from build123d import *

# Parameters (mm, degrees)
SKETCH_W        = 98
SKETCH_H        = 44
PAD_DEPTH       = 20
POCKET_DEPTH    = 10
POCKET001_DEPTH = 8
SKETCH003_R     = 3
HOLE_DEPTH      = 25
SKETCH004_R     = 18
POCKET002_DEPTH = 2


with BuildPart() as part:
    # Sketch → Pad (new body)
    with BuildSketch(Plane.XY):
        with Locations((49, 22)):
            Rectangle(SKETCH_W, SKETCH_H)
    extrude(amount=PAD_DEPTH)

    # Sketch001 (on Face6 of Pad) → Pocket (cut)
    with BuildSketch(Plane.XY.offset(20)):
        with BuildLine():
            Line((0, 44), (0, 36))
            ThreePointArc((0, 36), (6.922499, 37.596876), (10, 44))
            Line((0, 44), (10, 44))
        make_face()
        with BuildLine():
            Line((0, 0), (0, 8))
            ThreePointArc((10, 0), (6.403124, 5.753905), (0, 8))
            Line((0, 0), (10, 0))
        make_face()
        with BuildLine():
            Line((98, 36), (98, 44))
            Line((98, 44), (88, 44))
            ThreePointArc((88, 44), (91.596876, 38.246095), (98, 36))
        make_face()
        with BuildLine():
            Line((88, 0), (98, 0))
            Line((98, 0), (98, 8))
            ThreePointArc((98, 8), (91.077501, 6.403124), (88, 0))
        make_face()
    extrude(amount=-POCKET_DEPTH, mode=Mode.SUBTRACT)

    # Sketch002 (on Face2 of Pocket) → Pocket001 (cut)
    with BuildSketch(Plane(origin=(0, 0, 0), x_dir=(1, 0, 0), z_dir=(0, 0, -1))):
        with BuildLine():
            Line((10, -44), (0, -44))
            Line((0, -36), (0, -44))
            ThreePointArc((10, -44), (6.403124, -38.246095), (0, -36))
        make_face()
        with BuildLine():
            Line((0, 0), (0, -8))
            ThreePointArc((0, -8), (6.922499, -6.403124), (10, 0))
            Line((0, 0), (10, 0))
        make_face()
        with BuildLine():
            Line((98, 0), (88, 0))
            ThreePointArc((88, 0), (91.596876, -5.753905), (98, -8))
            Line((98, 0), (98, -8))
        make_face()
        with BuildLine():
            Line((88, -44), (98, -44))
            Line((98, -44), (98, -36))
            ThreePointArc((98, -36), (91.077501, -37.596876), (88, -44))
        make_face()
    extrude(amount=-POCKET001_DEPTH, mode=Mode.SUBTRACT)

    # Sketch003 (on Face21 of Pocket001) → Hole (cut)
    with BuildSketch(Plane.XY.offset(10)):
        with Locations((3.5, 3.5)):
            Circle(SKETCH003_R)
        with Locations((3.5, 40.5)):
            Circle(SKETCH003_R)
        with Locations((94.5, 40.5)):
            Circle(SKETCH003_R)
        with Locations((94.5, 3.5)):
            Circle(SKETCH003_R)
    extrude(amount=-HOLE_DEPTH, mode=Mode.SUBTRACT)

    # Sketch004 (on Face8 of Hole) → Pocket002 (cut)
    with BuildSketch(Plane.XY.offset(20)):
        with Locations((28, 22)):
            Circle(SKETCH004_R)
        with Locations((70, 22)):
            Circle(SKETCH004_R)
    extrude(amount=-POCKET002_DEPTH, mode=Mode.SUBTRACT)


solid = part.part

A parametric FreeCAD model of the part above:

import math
import FreeCAD as App
import Part
import Sketcher
Q = App.Units.Quantity

doc = App.newDocument("Part")
params = doc.addObject("Spreadsheet::Sheet", "Params")
for row, (alias, value) in enumerate([
    ("sketch1_width", "98 mm"),
    ("sketch1_height", "44 mm"),
    ("pad1_length", "20 mm"),
    ("sketch2_radius", "8.200001 mm"),
    ("sketch2_width", "10 mm"),
    ("pocket1_length", "10 mm"),
    ("sketch3_radius", "8.200001 mm"),
    ("sketch3_width", "10 mm"),
    ("pocket2_length", "8 mm"),
    ("sketch4_diameter", "6 mm"),
    ("pocket3_length", "25 mm"),
    ("sketch5_diameter", "36 mm"),
    ("pocket4_length", "2 mm"),
], start=1):
    params.set(f"A{row}", alias)
    params.set(f"B{row}", "=" + value)
    params.setAlias(f"B{row}", alias)

body = doc.addObject("PartDesign::Body", "Body")

sketch1 = body.newObject("Sketcher::SketchObject", "Sketch")
sketch1.AttachmentSupport = (doc.getObject("XY_Plane"), [""])
sketch1.MapMode = "FlatFace"
sketch1.addGeometry([
    Part.LineSegment(App.Vector(0, 44, 0), App.Vector(0, 0, 0)),
    Part.LineSegment(App.Vector(0, 0, 0), App.Vector(98, 0, 0)),
    Part.LineSegment(App.Vector(98, 0, 0), App.Vector(98, 44, 0)),
    Part.LineSegment(App.Vector(98, 44, 0), App.Vector(0, 44, 0)),
], False)
sketch1.addConstraint([
    Sketcher.Constraint("Coincident", 0, 2, 1, 1),
    Sketcher.Constraint("Coincident", 1, 2, 2, 1),
    Sketcher.Constraint("Coincident", 2, 2, 3, 1),
    Sketcher.Constraint("Coincident", 3, 2, 0, 1),
    Sketcher.Constraint("Vertical", 0),
    Sketcher.Constraint("Horizontal", 1),
    Sketcher.Constraint("Vertical", 2),
    Sketcher.Constraint("Horizontal", 3),
    Sketcher.Constraint("Coincident", 0, 2, -1, 1),
    Sketcher.Constraint("DistanceX", 1, 1, 1, 2, Q("98 mm")),
    Sketcher.Constraint("DistanceY", 0, 2, 0, 1, Q("44 mm")),
])
sketch1.setExpression("Constraints[9]", "Params.sketch1_width")
sketch1.setExpression("Constraints[10]", "Params.sketch1_height")
pad1 = body.newObject("PartDesign::Pad", "Pad")
pad1.Profile = sketch1
pad1.setExpression("Length", "Params.pad1_length")

sketch2 = body.newObject("Sketcher::SketchObject", "Sketch001")
sketch2.AttachmentSupport = (doc.getObject("XY_Plane"), [""])
sketch2.MapMode = "FlatFace"
sketch2.AttachmentOffset = App.Placement(App.Vector(0, 0, 20), App.Rotation())
sketch2.addGeometry([
    Part.LineSegment(App.Vector(0, 44, 0), App.Vector(0, 36, 0)),
    Part.ArcOfCircle(Part.Circle(App.Vector(2, 44, 0), App.Vector(0, 0, 1), 8), math.radians(-103), math.radians(0)),
    Part.LineSegment(App.Vector(10, 44, 0), App.Vector(0, 44, 0)),
    Part.LineSegment(App.Vector(0, 8, 0), App.Vector(0, 0, 0)),
    Part.LineSegment(App.Vector(0, 0, 0), App.Vector(10, 0, 0)),
    Part.ArcOfCircle(Part.Circle(App.Vector(0, -2, 0), App.Vector(0, 0, 1), 10), math.radians(13), math.radians(90)),
    Part.LineSegment(App.Vector(98, 36, 0), App.Vector(98, 44, 0)),
    Part.LineSegment(App.Vector(98, 44, 0), App.Vector(88, 44, 0)),
    Part.ArcOfCircle(Part.Circle(App.Vector(98, 46, 0), App.Vector(0, 0, 1), 10), math.radians(-167), math.radians(-90)),
    Part.LineSegment(App.Vector(88, 0, 0), App.Vector(98, 0, 0)),
    Part.LineSegment(App.Vector(98, 0, 0), App.Vector(98, 8, 0)),
    Part.ArcOfCircle(Part.Circle(App.Vector(96, 0, 0), App.Vector(0, 0, 1), 8), math.radians(77), math.radians(180)),
], False)
sketch2.addConstraint([
    Sketcher.Constraint("Coincident", 0, 2, 1, 1),
    Sketcher.Constraint("Coincident", 1, 2, 2, 1),
    Sketcher.Constraint("Coincident", 2, 2, 0, 1),
    Sketcher.Constraint("Coincident", 3, 2, 4, 1),
    Sketcher.Constraint("Coincident", 4, 2, 5, 1),
    Sketcher.Constraint("Coincident", 5, 2, 3, 1),
    Sketcher.Constraint("Coincident", 6, 2, 7, 1),
    Sketcher.Constraint("Coincident", 7, 2, 8, 1),
    Sketcher.Constraint("Coincident", 8, 2, 6, 1),
    Sketcher.Constraint("Coincident", 9, 2, 10, 1),
    Sketcher.Constraint("Coincident", 10, 2, 11, 1),
    Sketcher.Constraint("Coincident", 11, 2, 9, 1),
    Sketcher.Constraint("Vertical", 0),
    Sketcher.Constraint("Horizontal", 2),
    Sketcher.Constraint("Vertical", 3),
    Sketcher.Constraint("Horizontal", 4),
    Sketcher.Constraint("Vertical", 6),
    Sketcher.Constraint("Horizontal", 7),
    Sketcher.Constraint("Horizontal", 9),
    Sketcher.Constraint("Vertical", 10),
    Sketcher.Constraint("Coincident", 3, 2, -1, 1),
    Sketcher.Constraint("Equal", 5, 8),
    Sketcher.Constraint("Equal", 1, 11),
    Sketcher.Constraint("PointOnObject", 5, 3, -2),
    Sketcher.Constraint("PointOnObject", 11, 3, -1),
    Sketcher.Constraint("PointOnObject", 0, 2, -2),
    Sketcher.Constraint("PointOnObject", 9, 2, -1),
    Sketcher.Constraint("Horizontal", 2, 2, 6, 2),
    Sketcher.Constraint("Horizontal", 0, 2, 8, 2),
    Sketcher.Constraint("Horizontal", 5, 2, 10, 2),
    Sketcher.Constraint("Vertical", 1, 2, 4, 2),
    Sketcher.Constraint("Vertical", 8, 3, 6, 2),
    Sketcher.Constraint("Vertical", 8, 2, 9, 2),
    Sketcher.Constraint("Vertical", 7, 2, 11, 2),
    Sketcher.Constraint("Equal", 4, 7),
    Sketcher.Constraint("Radius", 1, Q("8.200001 mm")),
    Sketcher.Constraint("DistanceX", 2, 2, 2, 1, Q("10 mm")),
    Sketcher.Constraint("DistanceY", -1, 1, 1, 3, Q("44.000001 mm")),
    Sketcher.Constraint("DistanceX", -1, 1, 8, 3, Q("98.000001 mm")),
])
sketch2.setExpression("Constraints[35]", "Params.sketch2_radius")
sketch2.setExpression("Constraints[36]", "Params.sketch2_width")
pocket1 = body.newObject("PartDesign::Pocket", "Pocket")
pocket1.Profile = sketch2
pocket1.setExpression("Length", "Params.pocket1_length")

sketch3 = body.newObject("Sketcher::SketchObject", "Sketch002")
sketch3.AttachmentSupport = (doc.getObject("XY_Plane"), [""])
sketch3.MapMode = "FlatFace"
sketch3.addGeometry([
    Part.LineSegment(App.Vector(0, 44, 0), App.Vector(10, 44, 0)),
    Part.ArcOfCircle(Part.Circle(App.Vector(0, 46, 0), App.Vector(0, 0, 1), 10), math.radians(-90), math.radians(-13)),
    Part.LineSegment(App.Vector(0, 36, 0), App.Vector(0, 44, 0)),
    Part.LineSegment(App.Vector(0, 0, 0), App.Vector(0, 8, 0)),
    Part.ArcOfCircle(Part.Circle(App.Vector(2, 0, 0), App.Vector(0, 0, 1), 8), math.radians(0), math.radians(103)),
    Part.LineSegment(App.Vector(10, 0, 0), App.Vector(0, 0, 0)),
    Part.LineSegment(App.Vector(98, 0, 0), App.Vector(88, 0, 0)),
    Part.ArcOfCircle(Part.Circle(App.Vector(98, -2, 0), App.Vector(0, 0, 1), 10), math.radians(90), math.radians(167)),
    Part.LineSegment(App.Vector(98, 8, 0), App.Vector(98, 0, 0)),
    Part.LineSegment(App.Vector(88, 44, 0), App.Vector(98, 44, 0)),
    Part.LineSegment(App.Vector(98, 44, 0), App.Vector(98, 36, 0)),
    Part.ArcOfCircle(Part.Circle(App.Vector(96, 44, 0), App.Vector(0, 0, 1), 8), math.radians(-180), math.radians(-77)),
], False)
sketch3.addConstraint([
    Sketcher.Constraint("Coincident", 0, 2, 1, 2),
    Sketcher.Constraint("Coincident", 1, 1, 2, 1),
    Sketcher.Constraint("Coincident", 2, 2, 0, 1),
    Sketcher.Constraint("Coincident", 3, 2, 4, 2),
    Sketcher.Constraint("Coincident", 4, 1, 5, 1),
    Sketcher.Constraint("Coincident", 5, 2, 3, 1),
    Sketcher.Constraint("Coincident", 6, 2, 7, 2),
    Sketcher.Constraint("Coincident", 7, 1, 8, 1),
    Sketcher.Constraint("Coincident", 8, 2, 6, 1),
    Sketcher.Constraint("Coincident", 9, 2, 10, 1),
    Sketcher.Constraint("Coincident", 10, 2, 11, 2),
    Sketcher.Constraint("Coincident", 11, 1, 9, 1),
    Sketcher.Constraint("Horizontal", 0),
    Sketcher.Constraint("Vertical", 2),
    Sketcher.Constraint("Vertical", 3),
    Sketcher.Constraint("Horizontal", 5),
    Sketcher.Constraint("Horizontal", 6),
    Sketcher.Constraint("Vertical", 8),
    Sketcher.Constraint("Horizontal", 9),
    Sketcher.Constraint("Vertical", 10),
    Sketcher.Constraint("Coincident", 5, 2, -1, 1),
    Sketcher.Constraint("Equal", 1, 7),
    Sketcher.Constraint("Equal", 4, 11),
    Sketcher.Constraint("PointOnObject", 1, 3, -2),
    Sketcher.Constraint("PointOnObject", 4, 3, -1),
    Sketcher.Constraint("PointOnObject", 1, 1, -2),
    Sketcher.Constraint("PointOnObject", 6, 2, -1),
    Sketcher.Constraint("Horizontal", 11, 3, 0, 2),
    Sketcher.Constraint("Horizontal", 3, 2, 7, 1),
    Sketcher.Constraint("Horizontal", 2, 2, 9, 2),
    Sketcher.Constraint("Horizontal", 1, 1, 10, 2),
    Sketcher.Constraint("Vertical", 0, 2, 4, 1),
    Sketcher.Constraint("Vertical", 8, 2, 9, 2),
    Sketcher.Constraint("Vertical", 6, 2, 11, 1),
    Sketcher.Constraint("Equal", 5, 6),
    Sketcher.Constraint("Radius", 4, Q("8.200001 mm")),
    Sketcher.Constraint("DistanceX", 0, 1, 0, 2, Q("10 mm")),
    Sketcher.Constraint("DistanceX", -1, 1, 7, 3, Q("98.000001 mm")),
    Sketcher.Constraint("DistanceY", -1, 1, 11, 3, Q("44.000001 mm")),
])
sketch3.setExpression("Constraints[35]", "Params.sketch3_radius")
sketch3.setExpression("Constraints[36]", "Params.sketch3_width")
pocket2 = body.newObject("PartDesign::Pocket", "Pocket001")
pocket2.Profile = sketch3
pocket2.setExpression("Length", "Params.pocket2_length")
pocket2.Reversed = True

sketch4 = body.newObject("Sketcher::SketchObject", "Sketch003")
sketch4.AttachmentSupport = (doc.getObject("XY_Plane"), [""])
sketch4.MapMode = "FlatFace"
sketch4.AttachmentOffset = App.Placement(App.Vector(0, 0, 10), App.Rotation())
sketch4.addGeometry([
    Part.Circle(App.Vector(3.5, 3.5, 0), App.Vector(0, 0, 1), 3),
    Part.Circle(App.Vector(3.5, 40.5, 0), App.Vector(0, 0, 1), 3),
    Part.Circle(App.Vector(94.5, 40.5, 0), App.Vector(0, 0, 1), 3),
    Part.Circle(App.Vector(94.5, 3.5, 0), App.Vector(0, 0, 1), 3),
], False)
sketch4.addConstraint([
    Sketcher.Constraint("Equal", 0, 1),
    Sketcher.Constraint("Equal", 1, 2),
    Sketcher.Constraint("Equal", 2, 3),
    Sketcher.Constraint("Horizontal", 1, 3, 2, 3),
    Sketcher.Constraint("Horizontal", 0, 3, 3, 3),
    Sketcher.Constraint("Vertical", 0, 3, 1, 3),
    Sketcher.Constraint("Vertical", 2, 3, 3, 3),
    Sketcher.Constraint("Diameter", 0, Q("6 mm")),
    Sketcher.Constraint("DistanceY", 0, 3, 1, 3, Q("37 mm")),
    Sketcher.Constraint("DistanceX", 1, 3, 2, 3, Q("91 mm")),
    Sketcher.Constraint("DistanceX", -1, 1, 0, 3, Q("3.5 mm")),
    Sketcher.Constraint("DistanceY", -1, 1, 0, 3, Q("3.5 mm")),
])
sketch4.setExpression("Constraints[7]", "Params.sketch4_diameter")
pocket3 = body.newObject("PartDesign::Pocket", "Pocket002")
pocket3.Profile = sketch4
pocket3.setExpression("Length", "Params.pocket3_length")

sketch5 = body.newObject("Sketcher::SketchObject", "Sketch004")
sketch5.AttachmentSupport = (doc.getObject("XY_Plane"), [""])
sketch5.MapMode = "FlatFace"
sketch5.AttachmentOffset = App.Placement(App.Vector(0, 0, 20), App.Rotation())
sketch5.addGeometry([
    Part.Circle(App.Vector(28, 22, 0), App.Vector(0, 0, 1), 18),
    Part.Circle(App.Vector(70, 22, 0), App.Vector(0, 0, 1), 18),
], False)
sketch5.addConstraint([
    Sketcher.Constraint("Equal", 0, 1),
    Sketcher.Constraint("Horizontal", 0, 3, 1, 3),
    Sketcher.Constraint("Diameter", 0, Q("36 mm")),
    Sketcher.Constraint("DistanceX", -1, 1, 0, 3, Q("28 mm")),
    Sketcher.Constraint("DistanceY", -1, 1, 0, 3, Q("22 mm")),
    Sketcher.Constraint("DistanceX", -1, 1, 1, 3, Q("70 mm")),
])
sketch5.setExpression("Constraints[2]", "Params.sketch5_diameter")
pocket4 = body.newObject("PartDesign::Pocket", "Pocket003")
pocket4.Profile = sketch5
pocket4.setExpression("Length", "Params.pocket4_length")

doc.recompute()
